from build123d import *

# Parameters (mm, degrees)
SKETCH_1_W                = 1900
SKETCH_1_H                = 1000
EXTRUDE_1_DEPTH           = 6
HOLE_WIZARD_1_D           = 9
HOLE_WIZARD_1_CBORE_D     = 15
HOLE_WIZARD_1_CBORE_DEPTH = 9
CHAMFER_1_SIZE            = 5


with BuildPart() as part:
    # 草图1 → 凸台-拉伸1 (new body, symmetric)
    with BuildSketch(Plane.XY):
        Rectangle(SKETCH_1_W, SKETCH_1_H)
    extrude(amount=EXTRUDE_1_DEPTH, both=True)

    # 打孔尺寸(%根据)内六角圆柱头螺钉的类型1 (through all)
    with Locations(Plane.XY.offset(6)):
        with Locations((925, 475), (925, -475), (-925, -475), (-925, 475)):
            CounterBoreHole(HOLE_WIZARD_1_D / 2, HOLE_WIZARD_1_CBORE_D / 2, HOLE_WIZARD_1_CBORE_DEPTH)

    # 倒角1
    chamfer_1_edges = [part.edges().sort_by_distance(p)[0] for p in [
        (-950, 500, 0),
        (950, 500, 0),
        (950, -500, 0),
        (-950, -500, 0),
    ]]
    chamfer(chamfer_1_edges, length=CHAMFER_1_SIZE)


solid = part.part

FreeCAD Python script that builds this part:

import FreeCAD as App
import Part
import Sketcher
from FreeCAD import Vector


def edges_at(feature, points):
    """Names of the edges that pass closest to the given points."""
    edges = feature.Shape.Edges
    near = lambda p: min(range(len(edges)), key=lambda i: edges[i].distToShape(Part.Vertex(*p))[0])
    return sorted({f"Edge{near(p) + 1}" for p in points})


def add_polygon(sketch, points):
    """Adds a closed chain of lines whose ends are joined by coincident constraints."""
    first, n = sketch.GeometryCount, len(points)
    for a, b in zip(points, points[1:] + points[:1]):
        sketch.addGeometry(Part.LineSegment(App.Vector(*a, 0), App.Vector(*b, 0)), False)
    for i in range(n):
        sketch.addConstraint(Sketcher.Constraint("Coincident", first + i, 2, first + (i + 1) % n, 1))

doc = App.newDocument("Part")
body = doc.addObject("PartDesign::Body", "Body")

sketch1 = body.newObject("Sketcher::SketchObject", "Sketch")
sketch1.AttachmentSupport = (doc.getObject("XY_Plane"), [""])
sketch1.MapMode = "FlatFace"
add_polygon(sketch1, [(-950, 500), (-950, -500), (950, -500), (950, 500)])
sketch1.addConstraint(Sketcher.Constraint("Vertical", 0))
sketch1.addConstraint(Sketcher.Constraint("Horizontal", 1))
sketch1.addConstraint(Sketcher.Constraint("Vertical", 2))
sketch1.addConstraint(Sketcher.Constraint("Horizontal", 3))
sketch1.addConstraint(Sketcher.Constraint("Symmetric", 0, 2, 2, 2, -1, 1))
sketch1.addConstraint(Sketcher.Constraint("DistanceX", 1, 1, 1, 2, 1900.0))
sketch1.addConstraint(Sketcher.Constraint("DistanceY", 0, 2, 0, 1, 1000.0))
pad1 = body.newObject("PartDesign::Pad", "Pad")
pad1.Profile = sketch1
pad1.Length = 12
pad1.Midplane = True

sketch2 = body.newObject("Sketcher::SketchObject", "Sketch001")
sketch2.AttachmentSupport = (doc.getObject("XY_Plane"), [""])
sketch2.MapMode = "FlatFace"
sketch2.AttachmentOffset = App.Placement(Vector(0, 0, 6), App.Rotation())
sketch2.addGeometry(Part.Circle(Vector(925, 475, 0), Vector(0, 0, 1), 4.5), False)
sketch2.addGeometry(Part.Circle(Vector(925, -475, 0), Vector(0, 0, 1), 4.5), False)
sketch2.addGeometry(Part.Circle(Vector(-925, -475, 0), Vector(0, 0, 1), 4.5), False)
sketch2.addGeometry(Part.Circle(Vector(-925, 475, 0), Vector(0, 0, 1), 4.5), False)
sketch2.addConstraint(Sketcher.Constraint("Equal", 0, 1))
sketch2.addConstraint(Sketcher.Constraint("Equal", 1, 2))
sketch2.addConstraint(Sketcher.Constraint("Equal", 2, 3))
sketch2.addConstraint(Sketcher.Constraint("Symmetric", 0, 3, 2, 3, -1, 1))
sketch2.addConstraint(Sketcher.Constraint("Symmetric", 1, 3, 3, 3, -1, 1))
sketch2.addConstraint(Sketcher.Constraint("Symmetric", 1, 3, 2, 3, -2))
sketch2.addConstraint(Sketcher.Constraint("Diameter", 0, 9.0))
sketch2.addConstraint(Sketcher.Constraint("DistanceX", -1, 1, 0, 3, 925.0))
sketch2.addConstraint(Sketcher.Constraint("DistanceY", -1, 1, 0, 3, 475.0))
doc.recompute()
hole = body.newObject("PartDesign::Hole", "Hole")
hole.Profile = sketch2
hole.ThreadType = "None"
hole.Diameter = 9
hole.DepthType = "ThroughAll"
hole.HoleCutType = "Counterbore"
hole.HoleCutDiameter = 15
hole.HoleCutDepth = 9
doc.recompute()

chamfer = body.newObject("PartDesign::Chamfer", "Chamfer")
chamfer.Base = (hole, edges_at(hole, [
    (-950, 500, 0),
    (950, 500, 0),
    (950, -500, 0),
    (-950, -500, 0),
]))
chamfer.Size = 5

doc.recompute()
